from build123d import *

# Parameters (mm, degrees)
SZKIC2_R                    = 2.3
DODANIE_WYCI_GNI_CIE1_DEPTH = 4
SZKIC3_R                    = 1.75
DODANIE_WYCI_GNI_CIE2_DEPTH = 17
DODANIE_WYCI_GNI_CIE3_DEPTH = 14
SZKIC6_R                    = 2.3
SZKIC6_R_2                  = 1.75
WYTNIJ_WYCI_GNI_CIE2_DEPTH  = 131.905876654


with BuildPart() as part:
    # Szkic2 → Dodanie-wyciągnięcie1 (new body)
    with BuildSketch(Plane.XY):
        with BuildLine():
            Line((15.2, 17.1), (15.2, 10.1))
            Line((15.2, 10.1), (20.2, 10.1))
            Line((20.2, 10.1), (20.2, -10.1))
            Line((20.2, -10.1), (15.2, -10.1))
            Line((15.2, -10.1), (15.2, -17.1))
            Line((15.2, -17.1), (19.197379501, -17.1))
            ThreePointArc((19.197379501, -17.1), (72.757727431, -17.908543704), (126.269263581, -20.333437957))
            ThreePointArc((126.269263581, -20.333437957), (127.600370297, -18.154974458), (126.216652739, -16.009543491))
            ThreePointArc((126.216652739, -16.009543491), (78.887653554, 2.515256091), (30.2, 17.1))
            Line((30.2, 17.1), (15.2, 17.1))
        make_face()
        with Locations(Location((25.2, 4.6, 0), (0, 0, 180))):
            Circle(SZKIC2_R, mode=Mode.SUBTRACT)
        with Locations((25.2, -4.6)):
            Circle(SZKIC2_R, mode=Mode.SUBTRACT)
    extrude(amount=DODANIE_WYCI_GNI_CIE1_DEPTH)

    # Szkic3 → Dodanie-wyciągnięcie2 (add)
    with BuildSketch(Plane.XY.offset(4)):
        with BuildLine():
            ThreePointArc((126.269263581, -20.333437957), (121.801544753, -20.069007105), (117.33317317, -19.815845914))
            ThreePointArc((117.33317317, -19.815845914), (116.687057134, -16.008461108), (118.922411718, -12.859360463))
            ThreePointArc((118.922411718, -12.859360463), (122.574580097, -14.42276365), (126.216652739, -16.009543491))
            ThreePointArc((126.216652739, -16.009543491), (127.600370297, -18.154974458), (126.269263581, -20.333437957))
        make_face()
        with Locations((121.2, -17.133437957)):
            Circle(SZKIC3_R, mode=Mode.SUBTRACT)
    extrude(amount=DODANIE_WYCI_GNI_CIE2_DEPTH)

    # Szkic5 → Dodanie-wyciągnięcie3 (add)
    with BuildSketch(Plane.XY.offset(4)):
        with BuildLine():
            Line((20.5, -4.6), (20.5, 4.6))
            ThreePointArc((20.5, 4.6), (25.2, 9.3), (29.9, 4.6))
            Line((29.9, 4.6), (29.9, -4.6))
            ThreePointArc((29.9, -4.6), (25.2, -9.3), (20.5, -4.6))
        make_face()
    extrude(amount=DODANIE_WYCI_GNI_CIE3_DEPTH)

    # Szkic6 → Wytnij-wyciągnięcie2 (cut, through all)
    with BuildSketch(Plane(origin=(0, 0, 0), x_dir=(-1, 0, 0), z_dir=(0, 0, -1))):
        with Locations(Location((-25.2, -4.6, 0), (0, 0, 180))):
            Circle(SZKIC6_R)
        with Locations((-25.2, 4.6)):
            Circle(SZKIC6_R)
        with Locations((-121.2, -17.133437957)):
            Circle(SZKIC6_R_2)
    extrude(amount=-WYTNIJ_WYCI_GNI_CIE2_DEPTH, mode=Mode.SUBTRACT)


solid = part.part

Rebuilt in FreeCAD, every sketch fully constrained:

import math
import FreeCAD as App
import Part
import Sketcher
from FreeCAD import Vector

doc = App.newDocument("Part")
body = doc.addObject("PartDesign::Body", "Body")

# Sketch on XY plane
sketch1 = body.newObject("Sketcher::SketchObject", "Sketch")
sketch1.AttachmentSupport = (doc.getObject("XY_Plane"), [""])
sketch1.MapMode = "FlatFace"
sketch1.addGeometry([
    Part.LineSegment(Vector(15.2, 17.1, 0), Vector(15.2, 10.1, 0)),  # 0
    Part.LineSegment(Vector(15.2, 10.1, 0), Vector(20.2, 10.1, 0)),  # 1
    Part.LineSegment(Vector(20.2, 10.1, 0), Vector(20.2, -10.1, 0)),  # 2
    Part.LineSegment(Vector(20.2, -10.1, 0), Vector(15.2, -10.1, 0)),  # 3
    Part.LineSegment(Vector(15.2, -10.1, 0), Vector(15.2, -17.1, 0)),  # 4
    Part.LineSegment(Vector(15.2, -17.1, 0), Vector(19.2, -17.1, 0)),  # 5
    Part.ArcOfCircle(Part.Circle(Vector(19.2, -1791.5, 0), Vector(0, 0, 1), 1774.4), math.radians(86.54), math.radians(90)),  # 6
    Part.ArcOfCircle(Part.Circle(Vector(125.2, -18.2, 0), Vector(0, 0, 1), 2.4), math.radians(-64), math.radians(65)),  # 7
    Part.ArcOfCircle(Part.Circle(Vector(-123.2, -583.4, 0), Vector(0, 0, 1), 619.8), math.radians(66.27), math.radians(75.67)),  # 8
    Part.LineSegment(Vector(30.2, 17.1, 0), Vector(15.2, 17.1, 0)),  # 9
    Part.Circle(Vector(25.2, -4.6, 0), Vector(0, 0, 1), 2.3),  # 10
    Part.Circle(Vector(25.2, 4.6, 0), Vector(0, 0, 1), 2.3),  # 11
], False)
sketch1.addConstraint([
    Sketcher.Constraint("Coincident", 0, 2, 1, 1),
    Sketcher.Constraint("Coincident", 1, 2, 2, 1),
    Sketcher.Constraint("Coincident", 2, 2, 3, 1),
    Sketcher.Constraint("Coincident", 3, 2, 4, 1),
    Sketcher.Constraint("Coincident", 4, 2, 5, 1),
    Sketcher.Constraint("Tangent", 5, 2, 6, 2),
    Sketcher.Constraint("Coincident", 6, 1, 7, 1),
    Sketcher.Constraint("Coincident", 7, 2, 8, 1),
    Sketcher.Constraint("Coincident", 8, 2, 9, 1),
    Sketcher.Constraint("Coincident", 9, 2, 0, 1),
    Sketcher.Constraint("Vertical", 0),
    Sketcher.Constraint("Horizontal", 1),
    Sketcher.Constraint("Vertical", 2),
    Sketcher.Constraint("Horizontal", 3),
    Sketcher.Constraint("Vertical", 4),
    Sketcher.Constraint("Horizontal", 5),
    Sketcher.Constraint("Horizontal", 9),
    Sketcher.Constraint("Equal", 10, 11),
    Sketcher.Constraint("Symmetric", 10, 3, 11, 3, -1),
    Sketcher.Constraint("Symmetric", 0, 2, 3, 2, -1),
    Sketcher.Constraint("Equal", 0, 4),
    Sketcher.Constraint("Diameter", 10, 4.6),
    Sketcher.Constraint("DistanceX", 1, 1, 1, 2, 5.0),
    Sketcher.Constraint("DistanceX", 9, 2, 9, 1, 15.0),
    Sketcher.Constraint("DistanceY", 0, 2, 0, 1, 7.0),
    Sketcher.Constraint("DistanceY", 2, 2, 2, 1, 20.2),
    Sketcher.Constraint("DistanceX", 10, 3, 7, 3, 100.0),
    Sketcher.Constraint("DistanceX", 0, 2, 11, 3, 10.0),
    Sketcher.Constraint("DistanceX", -1, 1, 7, 3, 125.2),
    Sketcher.Constraint("DistanceY", 10, 3, -1, 1, 4.6),
    Sketcher.Constraint("Radius", 6, 1774.402916),
    Sketcher.Constraint("Radius", 7, 2.400548),
    Sketcher.Constraint("Radius", 8, 619.810266),
    Sketcher.Constraint("DistanceX", 5, 1, 5, 2, 3.99738),
    Sketcher.Constraint("DistanceY", 7, 3, -1, 1, 18.184181),
    Sketcher.Constraint("DistanceY", 8, 3, -1, 1, 583.435959),
])
pad1 = body.newObject("PartDesign::Pad", "Pad")
pad1.Profile = sketch1
pad1.Length = 4

# Sketch on XY plane
sketch2 = body.newObject("Sketcher::SketchObject", "Sketch001")
sketch2.AttachmentSupport = (doc.getObject("XY_Plane"), [""])
sketch2.MapMode = "FlatFace"
sketch2.AttachmentOffset = App.Placement(Vector(0, 0, 4), App.Rotation())
sketch2.addGeometry([
    Part.ArcOfCircle(Part.Circle(Vector(19.2, -1791.5, 0), Vector(0, 0, 1), 1774.4), math.radians(86.54), math.radians(86.83)),  # 0
    Part.ArcOfCircle(Part.Circle(Vector(125.2, -18.2, 0), Vector(0, 0, 1), 2.4), math.radians(-64), math.radians(65)),  # 1
    Part.ArcOfCircle(Part.Circle(Vector(-123.2, -583.4, 0), Vector(0, 0, 1), 619.8), math.radians(66.27), math.radians(67.01)),  # 2
    Part.ArcOfCircle(Part.Circle(Vector(121.6, -17.1, 0), Vector(0, 0, 1), 5), math.radians(122), math.radians(212)),  # 3
    Part.Circle(Vector(121.2, -17.1, 0), Vector(0, 0, 1), 1.8),  # 4
], False)
sketch2.addConstraint([
    Sketcher.Constraint("Coincident", 0, 1, 1, 1),
    Sketcher.Constraint("Coincident", 1, 2, 2, 1),
    Sketcher.Constraint("Coincident", 2, 2, 3, 1),
    Sketcher.Constraint("Coincident", 3, 2, 0, 2),
    Sketcher.Constraint("Diameter", 4, 3.5),
    Sketcher.Constraint("DistanceX", 4, 3, 1, 3, 4.0),
    Sketcher.Constraint("DistanceX", -1, 1, 1, 3, 125.2),
    Sketcher.Constraint("DistanceY", 0, 1, 4, 3, 3.2),
    Sketcher.Constraint("Radius", 0, 1774.402932),
    Sketcher.Constraint("Radius", 3, 5.04571),
    Sketcher.Constraint("Radius", 1, 2.400548),
    Sketcher.Constraint("Radius", 2, 619.810267),
    Sketcher.Constraint("DistanceX", -1, 1, 0, 3, 19.197379),
    Sketcher.Constraint("DistanceY", 0, 3, -1, 1, 1791.502932),
    Sketcher.Constraint("DistanceY", 1, 3, -1, 1, 18.184181),
    Sketcher.Constraint("DistanceY", 2, 3, -1, 1, 583.435961),
    Sketcher.Constraint("DistanceY", 1, 3, 3, 3, 1.051958),
    Sketcher.Constraint("DistanceX", 2, 3, 3, 3, 244.772679),
    Sketcher.Constraint("DistanceY", 3, 3, 1, 2, 1.122679),
])
pad2 = body.newObject("PartDesign::Pad", "Pad001")
pad2.Profile = sketch2
pad2.Length = 17

# Sketch on XY plane
sketch3 = body.newObject("Sketcher::SketchObject", "Sketch002")
sketch3.AttachmentSupport = (doc.getObject("XY_Plane"), [""])
sketch3.MapMode = "FlatFace"
sketch3.AttachmentOffset = App.Placement(Vector(0, 0, 4), App.Rotation())
sketch3.addGeometry([
    Part.LineSegment(Vector(20.5, 4.6, 0), Vector(20.5, -4.6, 0)),
    Part.ArcOfCircle(Part.Circle(Vector(25.2, -4.6, 0), Vector(0, 0, 1), 4.7), math.radians(180), math.radians(360)),
    Part.LineSegment(Vector(29.9, -4.6, 0), Vector(29.9, 4.6, 0)),
    Part.ArcOfCircle(Part.Circle(Vector(25.2, 4.6, 0), Vector(0, 0, 1), 4.7), math.radians(0), math.radians(180)),
], False)
sketch3.addConstraint([
    Sketcher.Constraint("Tangent", 0, 2, 1, 1),
    Sketcher.Constraint("Tangent", 1, 2, 2, 1),
    Sketcher.Constraint("Tangent", 2, 2, 3, 1),
    Sketcher.Constraint("Tangent", 3, 2, 0, 1),
    Sketcher.Constraint("Vertical", 0),
    Sketcher.Constraint("Vertical", 2),
    Sketcher.Constraint("Radius", 1, 4.7),
    Sketcher.Constraint("DistanceY", 0, 2, 0, 1, 9.2),
    Sketcher.Constraint("DistanceX", -1, 1, 1, 3, 25.2),
    Sketcher.Constraint("DistanceY", 1, 3, -1, 1, 4.6),
])
pad3 = body.newObject("PartDesign::Pad", "Pad002")
pad3.Profile = sketch3
pad3.Length = 14

# Sketch on XY plane
sketch4 = body.newObject("Sketcher::SketchObject", "Sketch003")
sketch4.AttachmentSupport = (doc.getObject("XY_Plane"), [""])
sketch4.MapMode = "FlatFace"
sketch4.addGeometry([
    Part.Circle(Vector(25.2, -4.6, 0), Vector(0, 0, 1), 2.3),
    Part.Circle(Vector(25.2, 4.6, 0), Vector(0, 0, 1), 2.3),
    Part.Circle(Vector(121.2, -17.1, 0), Vector(0, 0, 1), 1.8),
], False)
sketch4.addConstraint([
    Sketcher.Constraint("Equal", 0, 1),
    Sketcher.Constraint("Symmetric", 0, 3, 1, 3, -1),
    Sketcher.Constraint("Diameter", 0, 4.6),
    Sketcher.Constraint("Diameter", 2, 3.5),
    Sketcher.Constraint("DistanceX", 0, 3, 2, 3, 96.0),
    Sketcher.Constraint("DistanceX", -1, 1, 0, 3, 25.2),
    Sketcher.Constraint("DistanceY", 0, 3, -1, 1, 4.6),
    Sketcher.Constraint("DistanceY", 2, 3, -1, 1, 17.133438),
])
pocket1 = body.newObject("PartDesign::Pocket", "Pocket")
pocket1.Profile = sketch4
pocket1.Type = "ThroughAll"
pocket1.Reversed = True

doc.recompute()
